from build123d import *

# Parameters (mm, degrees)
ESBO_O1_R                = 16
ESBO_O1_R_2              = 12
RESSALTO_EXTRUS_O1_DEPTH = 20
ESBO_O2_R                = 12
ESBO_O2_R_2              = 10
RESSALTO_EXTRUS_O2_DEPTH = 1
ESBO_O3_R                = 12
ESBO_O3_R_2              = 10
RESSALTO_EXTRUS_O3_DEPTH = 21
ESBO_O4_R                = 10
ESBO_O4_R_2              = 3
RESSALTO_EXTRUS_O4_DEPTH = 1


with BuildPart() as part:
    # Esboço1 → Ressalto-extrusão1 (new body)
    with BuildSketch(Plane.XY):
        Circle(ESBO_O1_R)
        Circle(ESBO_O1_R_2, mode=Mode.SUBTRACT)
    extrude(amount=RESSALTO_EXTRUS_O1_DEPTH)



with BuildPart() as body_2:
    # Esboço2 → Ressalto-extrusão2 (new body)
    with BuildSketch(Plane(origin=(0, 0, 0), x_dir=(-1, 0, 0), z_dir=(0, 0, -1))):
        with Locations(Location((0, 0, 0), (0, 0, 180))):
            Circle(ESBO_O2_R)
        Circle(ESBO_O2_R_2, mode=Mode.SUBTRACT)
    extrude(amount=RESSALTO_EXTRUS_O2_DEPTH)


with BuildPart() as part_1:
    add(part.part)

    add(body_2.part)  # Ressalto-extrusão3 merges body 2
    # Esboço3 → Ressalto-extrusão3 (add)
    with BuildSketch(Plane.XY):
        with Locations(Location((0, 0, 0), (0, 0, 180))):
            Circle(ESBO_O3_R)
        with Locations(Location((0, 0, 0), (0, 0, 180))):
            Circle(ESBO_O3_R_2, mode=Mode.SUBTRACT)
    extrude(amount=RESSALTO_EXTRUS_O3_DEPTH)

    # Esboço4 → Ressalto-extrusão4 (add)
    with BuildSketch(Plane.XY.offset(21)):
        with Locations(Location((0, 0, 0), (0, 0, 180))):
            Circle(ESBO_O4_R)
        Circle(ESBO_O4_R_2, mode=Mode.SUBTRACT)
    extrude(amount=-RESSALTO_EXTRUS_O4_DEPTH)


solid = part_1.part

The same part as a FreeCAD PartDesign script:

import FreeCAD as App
import Part
import Sketcher

V = App.Vector

doc = App.newDocument("Part")
body = doc.addObject("PartDesign::Body", "Body")

# Sketch on XY plane
sketch1 = body.newObject("Sketcher::SketchObject", "Sketch")
sketch1.AttachmentSupport = (doc.getObject("XY_Plane"), [""])
sketch1.MapMode = "FlatFace"
sketch1.addGeometry([
    Part.Circle(V(0, 0, 0), V(0, 0, 1), 16),
    Part.Circle(V(0, 0, 0), V(0, 0, 1), 12),
], False)
sketch1.addConstraint([
    Sketcher.Constraint("Coincident", 0, 3, -1, 1),
    Sketcher.Constraint("Coincident", 1, 3, -1, 1),
    Sketcher.Constraint("Diameter", 0, 32.0),
    Sketcher.Constraint("Diameter", 1, 24.0),
])
pad1 = body.newObject("PartDesign::Pad", "Pad")
pad1.Profile = sketch1
pad1.Length = 20
body2 = doc.addObject("PartDesign::Body", "Body001")

# Sketch on XY plane
sketch2 = body2.newObject("Sketcher::SketchObject", "Sketch001")
sketch2.AttachmentSupport = (doc.getObject("XY_Plane001"), [""])
sketch2.MapMode = "FlatFace"
sketch2.addGeometry([
    Part.Circle(V(0, 0, 0), V(0, 0, 1), 12),
    Part.Circle(V(0, 0, 0), V(0, 0, 1), 10),
], False)
sketch2.addConstraint([
    Sketcher.Constraint("Coincident", 0, 3, -1, 1),
    Sketcher.Constraint("Coincident", 1, 3, -1, 1),
    Sketcher.Constraint("Diameter", 0, 24.0),
    Sketcher.Constraint("Diameter", 1, 20.0),
])
pad2 = body2.newObject("PartDesign::Pad", "Pad001")
pad2.Profile = sketch2
pad2.Length = 1
pad2.Reversed = True
body.AllowCompound = True
doc.recompute()

boolean = body.newObject("PartDesign::Boolean", "Boolean")
boolean.Type = "Fuse"
boolean.addObjects([body2])

# Sketch on XY plane
sketch3 = body.newObject("Sketcher::SketchObject", "Sketch002")
sketch3.AttachmentSupport = (doc.getObject("XY_Plane"), [""])
sketch3.MapMode = "FlatFace"
sketch3.addGeometry([
    Part.Circle(V(0, 0, 0), V(0, 0, 1), 12),
    Part.Circle(V(0, 0, 0), V(0, 0, 1), 10),
], False)
sketch3.addConstraint([
    Sketcher.Constraint("Coincident", 0, 3, -1, 1),
    Sketcher.Constraint("Coincident", 1, 3, -1, 1),
    Sketcher.Constraint("Diameter", 0, 24.0),
    Sketcher.Constraint("Diameter", 1, 20.0),
])
pad3 = body.newObject("PartDesign::Pad", "Pad002")
pad3.Profile = sketch3
pad3.Length = 21

# Sketch on XY plane
sketch4 = body.newObject("Sketcher::SketchObject", "Sketch003")
sketch4.AttachmentSupport = (doc.getObject("XY_Plane"), [""])
sketch4.MapMode = "FlatFace"
sketch4.AttachmentOffset = App.Placement(V(0, 0, 21), App.Rotation())
sketch4.addGeometry([
    Part.Circle(V(0, 0, 0), V(0, 0, 1), 10),
    Part.Circle(V(0, 0, 0), V(0, 0, 1), 3),
], False)
sketch4.addConstraint([
    Sketcher.Constraint("Coincident", 0, 3, -1, 1),
    Sketcher.Constraint("Coincident", 1, 3, -1, 1),
    Sketcher.Constraint("Diameter", 0, 20.0),
    Sketcher.Constraint("Diameter", 1, 6.0),
])
pad4 = body.newObject("PartDesign::Pad", "Pad003")
pad4.Profile = sketch4
pad4.Length = 1
pad4.Reversed = True

doc.recompute()
